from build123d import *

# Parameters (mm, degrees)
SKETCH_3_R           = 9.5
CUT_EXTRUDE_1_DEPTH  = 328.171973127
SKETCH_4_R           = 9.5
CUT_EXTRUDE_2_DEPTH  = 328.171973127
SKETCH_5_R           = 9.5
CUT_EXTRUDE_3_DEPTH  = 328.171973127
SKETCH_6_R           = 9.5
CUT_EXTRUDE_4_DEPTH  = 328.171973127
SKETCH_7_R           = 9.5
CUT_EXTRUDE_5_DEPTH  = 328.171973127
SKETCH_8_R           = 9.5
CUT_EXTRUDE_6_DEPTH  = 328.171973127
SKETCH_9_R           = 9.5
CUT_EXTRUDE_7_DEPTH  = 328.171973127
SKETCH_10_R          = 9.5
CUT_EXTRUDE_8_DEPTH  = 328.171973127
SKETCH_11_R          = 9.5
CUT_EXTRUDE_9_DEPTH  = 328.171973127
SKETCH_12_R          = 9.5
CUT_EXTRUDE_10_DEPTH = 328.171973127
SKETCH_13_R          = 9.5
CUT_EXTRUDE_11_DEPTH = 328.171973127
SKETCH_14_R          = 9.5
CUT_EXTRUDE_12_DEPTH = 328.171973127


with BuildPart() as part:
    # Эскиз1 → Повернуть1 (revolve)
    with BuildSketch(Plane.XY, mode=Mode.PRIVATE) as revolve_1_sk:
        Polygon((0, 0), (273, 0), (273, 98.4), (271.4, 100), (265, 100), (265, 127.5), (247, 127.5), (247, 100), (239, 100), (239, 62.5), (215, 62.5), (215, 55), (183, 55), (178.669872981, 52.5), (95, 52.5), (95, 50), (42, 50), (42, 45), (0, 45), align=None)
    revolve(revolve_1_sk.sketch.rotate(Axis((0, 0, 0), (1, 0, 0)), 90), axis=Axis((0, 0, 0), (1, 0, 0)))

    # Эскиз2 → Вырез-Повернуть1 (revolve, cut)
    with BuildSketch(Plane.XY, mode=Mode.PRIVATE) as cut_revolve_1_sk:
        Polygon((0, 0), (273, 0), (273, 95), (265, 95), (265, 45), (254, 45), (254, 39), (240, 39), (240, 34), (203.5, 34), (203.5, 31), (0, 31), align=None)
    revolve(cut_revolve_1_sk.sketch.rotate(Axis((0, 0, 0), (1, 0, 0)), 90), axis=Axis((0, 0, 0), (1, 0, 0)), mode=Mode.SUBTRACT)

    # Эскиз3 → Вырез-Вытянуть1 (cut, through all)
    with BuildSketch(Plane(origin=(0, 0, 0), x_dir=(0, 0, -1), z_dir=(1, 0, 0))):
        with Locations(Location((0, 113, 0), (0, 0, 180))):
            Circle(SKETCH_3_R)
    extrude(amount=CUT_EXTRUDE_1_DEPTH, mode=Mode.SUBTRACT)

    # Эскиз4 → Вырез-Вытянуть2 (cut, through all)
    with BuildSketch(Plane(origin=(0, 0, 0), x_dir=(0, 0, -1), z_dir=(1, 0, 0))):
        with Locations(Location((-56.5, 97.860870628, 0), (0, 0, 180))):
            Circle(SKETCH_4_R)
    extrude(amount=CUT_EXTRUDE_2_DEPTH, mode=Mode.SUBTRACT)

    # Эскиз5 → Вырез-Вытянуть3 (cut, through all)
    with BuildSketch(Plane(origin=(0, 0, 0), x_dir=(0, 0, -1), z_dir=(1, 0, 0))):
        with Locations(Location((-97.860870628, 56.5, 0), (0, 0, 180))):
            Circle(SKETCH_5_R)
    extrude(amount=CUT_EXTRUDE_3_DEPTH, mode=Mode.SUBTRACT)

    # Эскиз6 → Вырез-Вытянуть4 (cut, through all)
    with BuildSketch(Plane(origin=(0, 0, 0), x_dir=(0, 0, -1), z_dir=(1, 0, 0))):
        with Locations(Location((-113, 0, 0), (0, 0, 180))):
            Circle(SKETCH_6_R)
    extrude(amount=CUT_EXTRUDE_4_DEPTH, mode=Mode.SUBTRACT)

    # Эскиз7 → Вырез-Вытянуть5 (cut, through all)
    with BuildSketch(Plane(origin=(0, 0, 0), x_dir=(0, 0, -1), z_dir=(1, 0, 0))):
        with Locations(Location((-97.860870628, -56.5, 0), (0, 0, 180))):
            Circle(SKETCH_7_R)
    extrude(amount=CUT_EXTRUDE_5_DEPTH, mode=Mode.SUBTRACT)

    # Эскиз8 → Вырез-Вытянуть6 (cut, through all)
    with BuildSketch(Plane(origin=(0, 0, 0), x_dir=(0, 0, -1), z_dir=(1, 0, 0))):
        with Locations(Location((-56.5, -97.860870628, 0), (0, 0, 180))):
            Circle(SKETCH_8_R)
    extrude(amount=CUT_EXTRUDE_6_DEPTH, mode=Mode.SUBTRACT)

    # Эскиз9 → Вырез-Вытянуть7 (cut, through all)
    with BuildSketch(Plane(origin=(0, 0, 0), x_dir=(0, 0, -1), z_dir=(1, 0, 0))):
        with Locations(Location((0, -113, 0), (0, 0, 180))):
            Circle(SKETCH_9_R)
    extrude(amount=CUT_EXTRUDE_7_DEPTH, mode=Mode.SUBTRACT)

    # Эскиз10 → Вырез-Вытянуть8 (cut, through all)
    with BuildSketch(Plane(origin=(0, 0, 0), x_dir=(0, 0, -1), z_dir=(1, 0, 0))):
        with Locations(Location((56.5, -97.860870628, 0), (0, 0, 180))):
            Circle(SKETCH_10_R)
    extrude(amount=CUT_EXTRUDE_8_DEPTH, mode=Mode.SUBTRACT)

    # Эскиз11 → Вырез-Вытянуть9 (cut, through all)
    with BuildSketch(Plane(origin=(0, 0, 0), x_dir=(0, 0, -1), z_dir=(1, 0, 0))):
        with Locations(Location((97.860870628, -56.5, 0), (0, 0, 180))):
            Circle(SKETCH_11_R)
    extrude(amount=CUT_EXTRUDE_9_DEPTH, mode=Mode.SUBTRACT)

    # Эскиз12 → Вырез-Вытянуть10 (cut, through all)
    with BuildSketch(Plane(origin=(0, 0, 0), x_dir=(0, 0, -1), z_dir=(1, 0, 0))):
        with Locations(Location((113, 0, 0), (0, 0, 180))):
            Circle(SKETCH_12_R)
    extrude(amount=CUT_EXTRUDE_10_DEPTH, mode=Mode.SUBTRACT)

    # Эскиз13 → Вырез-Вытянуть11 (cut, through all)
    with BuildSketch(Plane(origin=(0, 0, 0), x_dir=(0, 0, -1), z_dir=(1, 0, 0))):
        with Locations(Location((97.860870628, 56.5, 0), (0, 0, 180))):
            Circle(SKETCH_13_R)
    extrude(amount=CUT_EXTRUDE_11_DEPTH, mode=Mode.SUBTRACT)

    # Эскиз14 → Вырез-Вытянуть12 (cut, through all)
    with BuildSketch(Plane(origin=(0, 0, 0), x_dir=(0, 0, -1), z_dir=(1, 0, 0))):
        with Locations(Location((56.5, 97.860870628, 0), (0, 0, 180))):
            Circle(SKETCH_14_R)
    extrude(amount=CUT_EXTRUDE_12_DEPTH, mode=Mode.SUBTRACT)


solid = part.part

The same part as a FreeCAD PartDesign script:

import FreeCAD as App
import Part
import Sketcher
Q = App.Units.Quantity


def add_polygon(sketch, points):
    """Adds a closed chain of lines whose ends are joined by coincident constraints."""
    first, n = sketch.GeometryCount, len(points)
    for a, b in zip(points, points[1:] + points[:1]):
        sketch.addGeometry(Part.LineSegment(App.Vector(*a, 0), App.Vector(*b, 0)), False)
    for i in range(n):
        sketch.addConstraint(Sketcher.Constraint("Coincident", first + i, 2, first + (i + 1) % n, 1))

doc = App.newDocument("Part")
body = doc.addObject("PartDesign::Body", "Body")

# Sketch on XY plane
sketch1 = doc.addObject("Sketcher::SketchObject", "Sketch")
body.addObject(sketch1)
sketch1.AttachmentSupport = (doc.XY_Plane, [""])
sketch1.MapMode = "FlatFace"
add_polygon(sketch1, [(0, 0), (273, 0), (273, 98.4), (271.4, 100), (265, 100), (265, 127.5), (247, 127.5), (247, 100), (239, 100), (239, 62.5), (215, 62.5), (215, 55), (183, 55), (178.669873, 52.5), (95, 52.5), (95, 50), (42, 50), (42, 45), (0, 45)])  # lines 0-18
sketch1.addConstraint([
    Sketcher.Constraint("Horizontal", 0),
    Sketcher.Constraint("Vertical", 1),
    Sketcher.Constraint("Horizontal", 3),
    Sketcher.Constraint("Vertical", 4),
    Sketcher.Constraint("Horizontal", 5),
    Sketcher.Constraint("Vertical", 6),
    Sketcher.Constraint("Horizontal", 7),
    Sketcher.Constraint("Vertical", 8),
    Sketcher.Constraint("Horizontal", 9),
    Sketcher.Constraint("Vertical", 10),
    Sketcher.Constraint("Horizontal", 11),
    Sketcher.Constraint("Horizontal", 13),
    Sketcher.Constraint("Vertical", 14),
    Sketcher.Constraint("Horizontal", 15),
    Sketcher.Constraint("Vertical", 16),
    Sketcher.Constraint("Horizontal", 17),
    Sketcher.Constraint("Vertical", 18),
    Sketcher.Constraint("Coincident", 18, 2, -1, 1),
    Sketcher.Constraint("Horizontal", 3, 2, 6, 2),
    Sketcher.Constraint("DistanceX", 0, 1, 0, 2, 273.0),
    Sketcher.Constraint("DistanceX", 5, 2, 5, 1, 18.0),
    Sketcher.Constraint("DistanceX", 7, 2, 7, 1, 8.0),
    Sketcher.Constraint("DistanceX", 9, 2, 9, 1, 24.0),
    Sketcher.Constraint("DistanceX", 11, 2, 11, 1, 32.0),
    Sketcher.Constraint("DistanceX", 15, 2, 15, 1, 53.0),
    Sketcher.Constraint("DistanceX", 17, 2, 17, 1, 42.0),
    Sketcher.Constraint("DistanceY", 16, 2, 16, 1, 5.0),
    Sketcher.Constraint("DistanceY", 18, 2, 18, 1, 45.0),
    Sketcher.Constraint("Angle", 2, Q("135 deg")),
    Sketcher.Constraint("Angle", 12, Q("-150 deg")),
    Sketcher.Constraint("Distance", 12, 5.0),
    Sketcher.Constraint("DistanceX", 3, 2, 3, 1, 6.4),
    Sketcher.Constraint("DistanceY", 1, 1, 1, 2, 98.4),
    Sketcher.Constraint("DistanceY", 4, 1, 4, 2, 27.5),
    Sketcher.Constraint("DistanceY", 8, 2, 8, 1, 37.5),
    Sketcher.Constraint("DistanceY", 10, 2, 10, 1, 7.5),
    Sketcher.Constraint("DistanceY", 14, 2, 14, 1, 2.5),
])
revolution = doc.addObject("PartDesign::Revolution", "Revolution")
body.addObject(revolution)
revolution.Profile = sketch1
revolution.ReferenceAxis = (sketch1, ["H_Axis"])
revolution.Angle = 360

# Sketch on XY plane
sketch2 = doc.addObject("Sketcher::SketchObject", "Sketch001")
body.addObject(sketch2)
sketch2.AttachmentSupport = (doc.XY_Plane, [""])
sketch2.MapMode = "FlatFace"
add_polygon(sketch2, [(0, 0), (273, 0), (273, 95), (265, 95), (265, 45), (254, 45), (254, 39), (240, 39), (240, 34), (203.5, 34), (203.5, 31), (0, 31)])  # lines 0-11
sketch2.addConstraint([
    Sketcher.Constraint("Horizontal", 0),
    Sketcher.Constraint("Vertical", 1),
    Sketcher.Constraint("Horizontal", 2),
    Sketcher.Constraint("Vertical", 3),
    Sketcher.Constraint("Horizontal", 4),
    Sketcher.Constraint("Vertical", 5),
    Sketcher.Constraint("Horizontal", 6),
    Sketcher.Constraint("Vertical", 7),
    Sketcher.Constraint("Horizontal", 8),
    Sketcher.Constraint("Vertical", 9),
    Sketcher.Constraint("Horizontal", 10),
    Sketcher.Constraint("Vertical", 11),
    Sketcher.Constraint("Coincident", 11, 2, -1, 1),
    Sketcher.Constraint("DistanceX", 0, 1, 0, 2, 273.0),
    Sketcher.Constraint("DistanceX", 2, 2, 2, 1, 8.0),
    Sketcher.Constraint("DistanceX", 4, 2, 4, 1, 11.0),
    Sketcher.Constraint("DistanceX", 6, 2, 6, 1, 14.0),
    Sketcher.Constraint("DistanceY", 1, 1, 1, 2, 95.0),
    Sketcher.Constraint("DistanceY", 3, 2, 3, 1, 50.0),
    Sketcher.Constraint("DistanceY", 5, 2, 5, 1, 6.0),
    Sketcher.Constraint("DistanceY", 7, 2, 7, 1, 5.0),
    Sketcher.Constraint("DistanceY", 9, 2, 9, 1, 3.0),
    Sketcher.Constraint("DistanceX", 8, 2, 8, 1, 36.5),
])
groove = doc.addObject("PartDesign::Groove", "Groove")
body.addObject(groove)
groove.Profile = sketch2
groove.ReferenceAxis = (sketch2, ["H_Axis"])
groove.Angle = 360

# Sketch on YZ plane
sketch3 = doc.addObject("Sketcher::SketchObject", "Sketch002")
body.addObject(sketch3)
sketch3.AttachmentSupport = (doc.YZ_Plane, [""])
sketch3.MapMode = "FlatFace"
sketch3.addGeometry(Part.Circle(App.Vector(113, 0, 0), App.Vector(0, 0, 1), 9.5), False)
sketch3.addConstraint([
    Sketcher.Constraint("PointOnObject", 0, 3, -1),
    Sketcher.Constraint("Diameter", 0, 19.0),
    Sketcher.Constraint("DistanceX", -1, 1, 0, 3, 113.0),
])
pocket1 = doc.addObject("PartDesign::Pocket", "Pocket")
body.addObject(pocket1)
pocket1.Profile = sketch3
pocket1.Type = "ThroughAll"
pocket1.Reversed = True

# Sketch on YZ plane
sketch4 = doc.addObject("Sketcher::SketchObject", "Sketch003")
body.addObject(sketch4)
sketch4.AttachmentSupport = (doc.YZ_Plane, [""])
sketch4.MapMode = "FlatFace"
sketch4.addGeometry(Part.Circle(App.Vector(97.860871, 56.5, 0), App.Vector(0, 0, 1), 9.5), False)
sketch4.addConstraint([
    Sketcher.Constraint("Diameter", 0, 19.0),
    Sketcher.Constraint("DistanceY", -1, 1, 0, 3, 56.5),
    Sketcher.Constraint("DistanceX", -1, 1, 0, 3, 97.860871),
])
pocket2 = doc.addObject("PartDesign::Pocket", "Pocket001")
body.addObject(pocket2)
pocket2.Profile = sketch4
pocket2.Type = "ThroughAll"
pocket2.Reversed = True

# Sketch on YZ plane
sketch5 = doc.addObject("Sketcher::SketchObject", "Sketch004")
body.addObject(sketch5)
sketch5.AttachmentSupport = (doc.YZ_Plane, [""])
sketch5.MapMode = "FlatFace"
sketch5.addGeometry(Part.Circle(App.Vector(56.5, 97.860871, 0), App.Vector(0, 0, 1), 9.5), False)
sketch5.addConstraint([
    Sketcher.Constraint("Diameter", 0, 19.0),
    Sketcher.Constraint("DistanceX", -1, 1, 0, 3, 56.5),
    Sketcher.Constraint("DistanceY", -1, 1, 0, 3, 97.860871),
])
pocket3 = doc.addObject("PartDesign::Pocket", "Pocket002")
body.addObject(pocket3)
pocket3.Profile = sketch5
pocket3.Type = "ThroughAll"
pocket3.Reversed = True

# Sketch on YZ plane
sketch6 = doc.addObject("Sketcher::SketchObject", "Sketch005")
body.addObject(sketch6)
sketch6.AttachmentSupport = (doc.YZ_Plane, [""])
sketch6.MapMode = "FlatFace"
sketch6.addGeometry(Part.Circle(App.Vector(0, 113, 0), App.Vector(0, 0, 1), 9.5), False)
sketch6.addConstraint([
    Sketcher.Constraint("PointOnObject", 0, 3, -2),
    Sketcher.Constraint("Diameter", 0, 19.0),
    Sketcher.Constraint("DistanceY", -1, 1, 0, 3, 113.0),
])
pocket4 = doc.addObject("PartDesign::Pocket", "Pocket003")
body.addObject(pocket4)
pocket4.Profile = sketch6
pocket4.Type = "ThroughAll"
pocket4.Reversed = True

# Sketch on YZ plane
sketch7 = doc.addObject("Sketcher::SketchObject", "Sketch006")
body.addObject(sketch7)
sketch7.AttachmentSupport = (doc.YZ_Plane, [""])
sketch7.MapMode = "FlatFace"
sketch7.addGeometry(Part.Circle(App.Vector(-56.5, 97.860871, 0), App.Vector(0, 0, 1), 9.5), False)
sketch7.addConstraint([
    Sketcher.Constraint("Diameter", 0, 19.0),
    Sketcher.Constraint("DistanceX", 0, 3, -1, 1, 56.5),
    Sketcher.Constraint("DistanceY", -1, 1, 0, 3, 97.860871),
])
pocket5 = doc.addObject("PartDesign::Pocket", "Pocket004")
body.addObject(pocket5)
pocket5.Profile = sketch7
pocket5.Type = "ThroughAll"
pocket5.Reversed = True

# Sketch on YZ plane
sketch8 = doc.addObject("Sketcher::SketchObject", "Sketch007")
body.addObject(sketch8)
sketch8.AttachmentSupport = (doc.YZ_Plane, [""])
sketch8.MapMode = "FlatFace"
sketch8.addGeometry(Part.Circle(App.Vector(-97.860871, 56.5, 0), App.Vector(0, 0, 1), 9.5), False)
sketch8.addConstraint([
    Sketcher.Constraint("Diameter", 0, 19.0),
    Sketcher.Constraint("DistanceY", -1, 1, 0, 3, 56.5),
    Sketcher.Constraint("DistanceX", 0, 3, -1, 1, 97.860871),
])
pocket6 = doc.addObject("PartDesign::Pocket", "Pocket005")
body.addObject(pocket6)
pocket6.Profile = sketch8
pocket6.Type = "ThroughAll"
pocket6.Reversed = True

# Sketch on YZ plane
sketch9 = doc.addObject("Sketcher::SketchObject", "Sketch008")
body.addObject(sketch9)
sketch9.AttachmentSupport = (doc.YZ_Plane, [""])
sketch9.MapMode = "FlatFace"
sketch9.addGeometry(Part.Circle(App.Vector(-113, 0, 0), App.Vector(0, 0, 1), 9.5), False)
sketch9.addConstraint([
    Sketcher.Constraint("PointOnObject", 0, 3, -1),
    Sketcher.Constraint("Diameter", 0, 19.0),
    Sketcher.Constraint("DistanceX", 0, 3, -1, 1, 113.0),
])
pocket7 = doc.addObject("PartDesign::Pocket", "Pocket006")
body.addObject(pocket7)
pocket7.Profile = sketch9
pocket7.Type = "ThroughAll"
pocket7.Reversed = True

# Sketch on YZ plane
sketch10 = doc.addObject("Sketcher::SketchObject", "Sketch009")
body.addObject(sketch10)
sketch10.AttachmentSupport = (doc.YZ_Plane, [""])
sketch10.MapMode = "FlatFace"
sketch10.addGeometry(Part.Circle(App.Vector(-97.860871, -56.5, 0), App.Vector(0, 0, 1), 9.5), False)
sketch10.addConstraint([
    Sketcher.Constraint("Diameter", 0, 19.0),
    Sketcher.Constraint("DistanceY", 0, 3, -1, 1, 56.5),
    Sketcher.Constraint("DistanceX", 0, 3, -1, 1, 97.860871),
])
pocket8 = doc.addObject("PartDesign::Pocket", "Pocket007")
body.addObject(pocket8)
pocket8.Profile = sketch10
pocket8.Type = "ThroughAll"
pocket8.Reversed = True

# Sketch on YZ plane
sketch11 = doc.addObject("Sketcher::SketchObject", "Sketch010")
body.addObject(sketch11)
sketch11.AttachmentSupport = (doc.YZ_Plane, [""])
sketch11.MapMode = "FlatFace"
sketch11.addGeometry(Part.Circle(App.Vector(-56.5, -97.860871, 0), App.Vector(0, 0, 1), 9.5), False)
sketch11.addConstraint([
    Sketcher.Constraint("Diameter", 0, 19.0),
    Sketcher.Constraint("DistanceX", 0, 3, -1, 1, 56.5),
    Sketcher.Constraint("DistanceY", 0, 3, -1, 1, 97.860871),
])
pocket9 = doc.addObject("PartDesign::Pocket", "Pocket008")
body.addObject(pocket9)
pocket9.Profile = sketch11
pocket9.Type = "ThroughAll"
pocket9.Reversed = True

# Sketch on YZ plane
sketch12 = doc.addObject("Sketcher::SketchObject", "Sketch011")
body.addObject(sketch12)
sketch12.AttachmentSupport = (doc.YZ_Plane, [""])
sketch12.MapMode = "FlatFace"
sketch12.addGeometry(Part.Circle(App.Vector(0, -113, 0), App.Vector(0, 0, 1), 9.5), False)
sketch12.addConstraint([
    Sketcher.Constraint("PointOnObject", 0, 3, -2),
    Sketcher.Constraint("Diameter", 0, 19.0),
    Sketcher.Constraint("DistanceY", 0, 3, -1, 1, 113.0),
])
pocket10 = doc.addObject("PartDesign::Pocket", "Pocket009")
body.addObject(pocket10)
pocket10.Profile = sketch12
pocket10.Type = "ThroughAll"
pocket10.Reversed = True

# Sketch on YZ plane
sketch13 = doc.addObject("Sketcher::SketchObject", "Sketch012")
body.addObject(sketch13)
sketch13.AttachmentSupport = (doc.YZ_Plane, [""])
sketch13.MapMode = "FlatFace"
sketch13.addGeometry(Part.Circle(App.Vector(56.5, -97.860871, 0), App.Vector(0, 0, 1), 9.5), False)
sketch13.addConstraint([
    Sketcher.Constraint("Diameter", 0, 19.0),
    Sketcher.Constraint("DistanceX", -1, 1, 0, 3, 56.5),
    Sketcher.Constraint("DistanceY", 0, 3, -1, 1, 97.860871),
])
pocket11 = doc.addObject("PartDesign::Pocket", "Pocket010")
body.addObject(pocket11)
pocket11.Profile = sketch13
pocket11.Type = "ThroughAll"
pocket11.Reversed = True

# Sketch on YZ plane
sketch14 = doc.addObject("Sketcher::SketchObject", "Sketch013")
body.addObject(sketch14)
sketch14.AttachmentSupport = (doc.YZ_Plane, [""])
sketch14.MapMode = "FlatFace"
sketch14.addGeometry(Part.Circle(App.Vector(97.860871, -56.5, 0), App.Vector(0, 0, 1), 9.5), False)
sketch14.addConstraint([
    Sketcher.Constraint("Diameter", 0, 19.0),
    Sketcher.Constraint("DistanceY", 0, 3, -1, 1, 56.5),
    Sketcher.Constraint("DistanceX", -1, 1, 0, 3, 97.860871),
])
pocket12 = doc.addObject("PartDesign::Pocket", "Pocket011")
body.addObject(pocket12)
pocket12.Profile = sketch14
pocket12.Type = "ThroughAll"
pocket12.Reversed = True

doc.recompute()
